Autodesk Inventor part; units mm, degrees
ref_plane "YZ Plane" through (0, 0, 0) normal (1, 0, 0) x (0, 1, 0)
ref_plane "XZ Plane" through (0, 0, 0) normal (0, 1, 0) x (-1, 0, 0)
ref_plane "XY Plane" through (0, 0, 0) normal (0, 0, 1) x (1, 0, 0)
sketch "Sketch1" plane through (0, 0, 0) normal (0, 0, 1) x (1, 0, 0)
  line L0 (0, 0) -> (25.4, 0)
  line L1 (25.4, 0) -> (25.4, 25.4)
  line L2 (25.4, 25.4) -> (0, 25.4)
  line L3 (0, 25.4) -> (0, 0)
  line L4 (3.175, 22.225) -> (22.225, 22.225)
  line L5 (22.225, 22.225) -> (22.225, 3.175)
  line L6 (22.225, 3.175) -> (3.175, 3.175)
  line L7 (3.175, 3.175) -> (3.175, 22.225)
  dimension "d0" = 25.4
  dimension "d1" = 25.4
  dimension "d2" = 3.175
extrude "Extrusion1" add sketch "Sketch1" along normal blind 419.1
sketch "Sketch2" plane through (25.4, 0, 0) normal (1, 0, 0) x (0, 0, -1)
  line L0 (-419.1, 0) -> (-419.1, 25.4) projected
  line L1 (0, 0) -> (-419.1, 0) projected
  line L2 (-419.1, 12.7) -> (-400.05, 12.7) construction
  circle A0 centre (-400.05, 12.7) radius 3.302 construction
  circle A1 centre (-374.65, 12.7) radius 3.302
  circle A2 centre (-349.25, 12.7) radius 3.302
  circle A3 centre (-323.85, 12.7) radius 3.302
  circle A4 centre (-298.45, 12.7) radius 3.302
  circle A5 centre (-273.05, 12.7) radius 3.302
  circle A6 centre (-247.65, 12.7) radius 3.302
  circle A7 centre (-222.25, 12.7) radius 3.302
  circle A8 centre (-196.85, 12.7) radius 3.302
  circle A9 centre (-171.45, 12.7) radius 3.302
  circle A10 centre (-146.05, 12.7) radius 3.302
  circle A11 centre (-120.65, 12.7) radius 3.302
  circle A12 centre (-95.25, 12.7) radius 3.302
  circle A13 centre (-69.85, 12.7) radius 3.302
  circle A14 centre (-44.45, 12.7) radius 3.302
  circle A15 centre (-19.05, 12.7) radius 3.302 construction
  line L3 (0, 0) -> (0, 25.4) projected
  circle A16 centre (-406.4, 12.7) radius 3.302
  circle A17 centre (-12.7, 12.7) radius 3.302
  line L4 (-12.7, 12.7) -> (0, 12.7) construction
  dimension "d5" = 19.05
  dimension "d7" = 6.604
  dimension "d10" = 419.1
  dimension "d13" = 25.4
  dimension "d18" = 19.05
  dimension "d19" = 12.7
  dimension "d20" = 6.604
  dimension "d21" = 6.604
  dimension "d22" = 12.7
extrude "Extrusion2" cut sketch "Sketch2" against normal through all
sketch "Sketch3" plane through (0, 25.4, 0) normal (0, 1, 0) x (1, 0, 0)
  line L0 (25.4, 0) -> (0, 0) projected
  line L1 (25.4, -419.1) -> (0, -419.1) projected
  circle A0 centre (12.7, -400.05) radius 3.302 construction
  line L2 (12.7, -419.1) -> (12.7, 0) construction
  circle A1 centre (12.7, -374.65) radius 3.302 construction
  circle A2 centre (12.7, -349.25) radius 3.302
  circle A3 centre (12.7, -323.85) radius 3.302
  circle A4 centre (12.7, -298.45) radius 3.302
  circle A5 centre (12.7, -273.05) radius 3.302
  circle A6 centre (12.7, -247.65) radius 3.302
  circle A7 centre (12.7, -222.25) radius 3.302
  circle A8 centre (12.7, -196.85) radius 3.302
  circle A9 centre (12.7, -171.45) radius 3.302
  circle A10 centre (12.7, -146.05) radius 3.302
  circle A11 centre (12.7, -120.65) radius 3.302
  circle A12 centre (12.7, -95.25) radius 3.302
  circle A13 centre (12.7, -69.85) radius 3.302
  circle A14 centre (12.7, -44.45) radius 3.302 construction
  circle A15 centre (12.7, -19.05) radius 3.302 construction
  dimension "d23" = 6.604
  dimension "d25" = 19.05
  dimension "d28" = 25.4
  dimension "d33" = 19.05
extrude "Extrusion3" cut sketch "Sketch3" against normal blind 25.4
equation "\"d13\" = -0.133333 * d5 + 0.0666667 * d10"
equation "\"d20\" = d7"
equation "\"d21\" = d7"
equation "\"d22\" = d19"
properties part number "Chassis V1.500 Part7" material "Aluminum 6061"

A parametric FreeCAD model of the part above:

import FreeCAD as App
import Part
import Sketcher
from FreeCAD import Vector
Q = App.Units.Quantity


def add_polygon(sketch, points):
    """Adds a closed chain of lines whose ends are joined by coincident constraints."""
    first, n = sketch.GeometryCount, len(points)
    for a, b in zip(points, points[1:] + points[:1]):
        sketch.addGeometry(Part.LineSegment(App.Vector(*a, 0), App.Vector(*b, 0)), False)
    for i in range(n):
        sketch.addConstraint(Sketcher.Constraint("Coincident", first + i, 2, first + (i + 1) % n, 1))

doc = App.newDocument("Part")
body = doc.addObject("PartDesign::Body", "Body")

# Sketch on XY plane
sketch1 = doc.addObject("Sketcher::SketchObject", "Sketch")
body.addObject(sketch1)
sketch1.AttachmentSupport = (doc.XY_Plane, [""])
sketch1.MapMode = "FlatFace"
add_polygon(sketch1, [(0, 25), (0, 0), (25, 0), (25, 25)])  # lines 0-3
add_polygon(sketch1, [(3, 3), (3, 22), (22, 22), (22, 3)])  # lines 4-7
sketch1.addConstraint([
    Sketcher.Constraint("Vertical", 0),
    Sketcher.Constraint("Horizontal", 1),
    Sketcher.Constraint("Vertical", 2),
    Sketcher.Constraint("Horizontal", 3),
    Sketcher.Constraint("Vertical", 4),
    Sketcher.Constraint("Horizontal", 5),
    Sketcher.Constraint("Vertical", 6),
    Sketcher.Constraint("Horizontal", 7),
    Sketcher.Constraint("Coincident", 0, 2, -1, 1),
    Sketcher.Constraint("Equal", 3, 0),
    Sketcher.Constraint("Equal", 7, 4),
    Sketcher.Constraint("DistanceX", 1, 1, 1, 2, Q("1 in")),
    Sketcher.Constraint("DistanceX", -1, 1, 4, 2, Q("0.125 in")),
    Sketcher.Constraint("DistanceY", -1, 1, 6, 2, Q("0.125 in")),
    Sketcher.Constraint("DistanceY", 4, 2, 3, 2, Q("0.125 in")),
])
pad1 = doc.addObject("PartDesign::Pad", "Pad")
body.addObject(pad1)
pad1.Profile = sketch1
pad1.Length = Q("16.5 in")

# Sketch on YZ plane
sketch2 = doc.addObject("Sketcher::SketchObject", "Sketch001")
body.addObject(sketch2)
sketch2.AttachmentSupport = (doc.YZ_Plane, [""])
sketch2.MapMode = "FlatFace"
sketch2.AttachmentOffset = App.Placement(Vector(0, 0, 1 * 25.4), App.Rotation())
sketch2.addGeometry([
    Part.Circle(Vector(12.7, 374.6, 0), Vector(0, 0, 1), 3.3),  # 0
    Part.Circle(Vector(12.7, 349.2, 0), Vector(0, 0, 1), 3.3),  # 1
    Part.Circle(Vector(12.7, 323.9, 0), Vector(0, 0, 1), 3.3),  # 2
    Part.Circle(Vector(12.7, 298.4, 0), Vector(0, 0, 1), 3.3),  # 3
    Part.Circle(Vector(12.7, 273.1, 0), Vector(0, 0, 1), 3.3),  # 4
    Part.Circle(Vector(12.7, 247.7, 0), Vector(0, 0, 1), 3.3),  # 5
    Part.Circle(Vector(12.7, 222.2, 0), Vector(0, 0, 1), 3.3),  # 6
    Part.Circle(Vector(12.7, 196.8, 0), Vector(0, 0, 1), 3.3),  # 7
    Part.Circle(Vector(12.7, 171.4, 0), Vector(0, 0, 1), 3.3),  # 8
    Part.Circle(Vector(12.7, 146.1, 0), Vector(0, 0, 1), 3.3),  # 9
    Part.Circle(Vector(12.7, 120.7, 0), Vector(0, 0, 1), 3.3),  # 10
    Part.Circle(Vector(12.7, 95.2, 0), Vector(0, 0, 1), 3.3),  # 11
    Part.Circle(Vector(12.7, 69.8, 0), Vector(0, 0, 1), 3.3),  # 12
    Part.Circle(Vector(12.7, 44.5, 0), Vector(0, 0, 1), 3.3),  # 13
    Part.Circle(Vector(12.7, 406.4, 0), Vector(0, 0, 1), 3.3),  # 14
    Part.Circle(Vector(12.7, 12.7, 0), Vector(0, 0, 1), 3.3),  # 15
], False)
sketch2.addConstraint([
    Sketcher.Constraint("Equal", 0, 1),
    Sketcher.Constraint("Equal", 1, 2),
    Sketcher.Constraint("Equal", 2, 3),
    Sketcher.Constraint("Equal", 3, 4),
    Sketcher.Constraint("Equal", 4, 5),
    Sketcher.Constraint("Equal", 5, 6),
    Sketcher.Constraint("Equal", 6, 7),
    Sketcher.Constraint("Equal", 7, 8),
    Sketcher.Constraint("Equal", 8, 9),
    Sketcher.Constraint("Equal", 9, 10),
    Sketcher.Constraint("Equal", 10, 11),
    Sketcher.Constraint("Equal", 11, 12),
    Sketcher.Constraint("Equal", 12, 13),
    Sketcher.Constraint("Equal", 13, 14),
    Sketcher.Constraint("Equal", 14, 15),
    Sketcher.Constraint("Vertical", 0, 3, 1, 3),
    Sketcher.Constraint("Vertical", 1, 3, 2, 3),
    Sketcher.Constraint("Vertical", 2, 3, 3, 3),
    Sketcher.Constraint("Vertical", 3, 3, 4, 3),
    Sketcher.Constraint("Vertical", 4, 3, 5, 3),
    Sketcher.Constraint("Vertical", 5, 3, 6, 3),
    Sketcher.Constraint("Vertical", 6, 3, 7, 3),
    Sketcher.Constraint("Vertical", 7, 3, 8, 3),
    Sketcher.Constraint("Vertical", 8, 3, 9, 3),
    Sketcher.Constraint("Vertical", 9, 3, 10, 3),
    Sketcher.Constraint("Vertical", 10, 3, 11, 3),
    Sketcher.Constraint("Vertical", 11, 3, 12, 3),
    Sketcher.Constraint("Vertical", 12, 3, 13, 3),
    Sketcher.Constraint("Vertical", 13, 3, 14, 3),
    Sketcher.Constraint("Vertical", 14, 3, 15, 3),
    Sketcher.Constraint("Diameter", 0, Q("0.26 in")),
    Sketcher.Constraint("DistanceY", 1, 3, 0, 3, Q("1 in")),
    Sketcher.Constraint("DistanceY", 2, 3, 1, 3, Q("1 in")),
    Sketcher.Constraint("DistanceY", 3, 3, 2, 3, Q("1 in")),
    Sketcher.Constraint("DistanceY", 4, 3, 3, 3, Q("1 in")),
    Sketcher.Constraint("DistanceY", 5, 3, 4, 3, Q("1 in")),
    Sketcher.Constraint("DistanceY", 6, 3, 5, 3, Q("1 in")),
    Sketcher.Constraint("DistanceY", 7, 3, 6, 3, Q("1 in")),
    Sketcher.Constraint("DistanceY", 8, 3, 7, 3, Q("1 in")),
    Sketcher.Constraint("DistanceY", 9, 3, 8, 3, Q("1 in")),
    Sketcher.Constraint("DistanceY", 10, 3, 9, 3, Q("1 in")),
    Sketcher.Constraint("DistanceY", 11, 3, 10, 3, Q("1 in")),
    Sketcher.Constraint("DistanceY", 12, 3, 11, 3, Q("1 in")),
    Sketcher.Constraint("DistanceY", 13, 3, 12, 3, Q("1 in")),
    Sketcher.Constraint("DistanceX", -1, 1, 0, 3, Q("0.5 in")),
    Sketcher.Constraint("DistanceY", -1, 1, 15, 3, Q("0.5 in")),
    Sketcher.Constraint("DistanceY", -1, 1, 14, 3, Q("16 in")),
    Sketcher.Constraint("DistanceY", -1, 1, 0, 3, Q("14.75 in")),
])
pocket1 = doc.addObject("PartDesign::Pocket", "Pocket")
body.addObject(pocket1)
pocket1.Profile = sketch2
pocket1.Type = "ThroughAll"

# Sketch on XZ plane
sketch3 = doc.addObject("Sketcher::SketchObject", "Sketch002")
body.addObject(sketch3)
sketch3.AttachmentSupport = (doc.XZ_Plane, [""])
sketch3.MapMode = "FlatFace"
sketch3.AttachmentOffset = App.Placement(Vector(0, 0, -1 * 25.4), App.Rotation())
sketch3.addGeometry([
    Part.Circle(Vector(12.7, 349.2, 0), Vector(0, 0, 1), 3.3),  # 0
    Part.Circle(Vector(12.7, 323.9, 0), Vector(0, 0, 1), 3.3),  # 1
    Part.Circle(Vector(12.7, 298.4, 0), Vector(0, 0, 1), 3.3),  # 2
    Part.Circle(Vector(12.7, 273.1, 0), Vector(0, 0, 1), 3.3),  # 3
    Part.Circle(Vector(12.7, 247.7, 0), Vector(0, 0, 1), 3.3),  # 4
    Part.Circle(Vector(12.7, 222.2, 0), Vector(0, 0, 1), 3.3),  # 5
    Part.Circle(Vector(12.7, 196.8, 0), Vector(0, 0, 1), 3.3),  # 6
    Part.Circle(Vector(12.7, 171.4, 0), Vector(0, 0, 1), 3.3),  # 7
    Part.Circle(Vector(12.7, 146.1, 0), Vector(0, 0, 1), 3.3),  # 8
    Part.Circle(Vector(12.7, 120.7, 0), Vector(0, 0, 1), 3.3),  # 9
    Part.Circle(Vector(12.7, 95.2, 0), Vector(0, 0, 1), 3.3),  # 10
    Part.Circle(Vector(12.7, 69.8, 0), Vector(0, 0, 1), 3.3),  # 11
], False)
sketch3.addConstraint([
    Sketcher.Constraint("Equal", 0, 1),
    Sketcher.Constraint("Equal", 1, 2),
    Sketcher.Constraint("Equal", 2, 3),
    Sketcher.Constraint("Equal", 3, 4),
    Sketcher.Constraint("Equal", 4, 5),
    Sketcher.Constraint("Equal", 5, 6),
    Sketcher.Constraint("Equal", 6, 7),
    Sketcher.Constraint("Equal", 7, 8),
    Sketcher.Constraint("Equal", 8, 9),
    Sketcher.Constraint("Equal", 9, 10),
    Sketcher.Constraint("Equal", 10, 11),
    Sketcher.Constraint("Vertical", 0, 3, 1, 3),
    Sketcher.Constraint("Vertical", 1, 3, 2, 3),
    Sketcher.Constraint("Vertical", 2, 3, 3, 3),
    Sketcher.Constraint("Vertical", 3, 3, 4, 3),
    Sketcher.Constraint("Vertical", 4, 3, 5, 3),
    Sketcher.Constraint("Vertical", 5, 3, 6, 3),
    Sketcher.Constraint("Vertical", 6, 3, 7, 3),
    Sketcher.Constraint("Vertical", 7, 3, 8, 3),
    Sketcher.Constraint("Vertical", 8, 3, 9, 3),
    Sketcher.Constraint("Vertical", 9, 3, 10, 3),
    Sketcher.Constraint("Vertical", 10, 3, 11, 3),
    Sketcher.Constraint("Diameter", 0, Q("0.26 in")),
    Sketcher.Constraint("DistanceY", 1, 3, 0, 3, Q("1 in")),
    Sketcher.Constraint("DistanceY", 2, 3, 1, 3, Q("1 in")),
    Sketcher.Constraint("DistanceY", 3, 3, 2, 3, Q("1 in")),
    Sketcher.Constraint("DistanceY", 4, 3, 3, 3, Q("1 in")),
    Sketcher.Constraint("DistanceY", 5, 3, 4, 3, Q("1 in")),
    Sketcher.Constraint("DistanceY", 6, 3, 5, 3, Q("1 in")),
    Sketcher.Constraint("DistanceY", 7, 3, 6, 3, Q("1 in")),
    Sketcher.Constraint("DistanceY", 8, 3, 7, 3, Q("1 in")),
    Sketcher.Constraint("DistanceY", 9, 3, 8, 3, Q("1 in")),
    Sketcher.Constraint("DistanceY", 10, 3, 9, 3, Q("1 in")),
    Sketcher.Constraint("DistanceY", 11, 3, 10, 3, Q("1 in")),
    Sketcher.Constraint("DistanceX", -1, 1, 0, 3, Q("0.5 in")),
    Sketcher.Constraint("DistanceY", -1, 1, 0, 3, Q("13.75 in")),
])
pocket2 = doc.addObject("PartDesign::Pocket", "Pocket001")
body.addObject(pocket2)
pocket2.Profile = sketch3
pocket2.Length = Q("1 in")
pocket2.Reversed = True

doc.recompute()
